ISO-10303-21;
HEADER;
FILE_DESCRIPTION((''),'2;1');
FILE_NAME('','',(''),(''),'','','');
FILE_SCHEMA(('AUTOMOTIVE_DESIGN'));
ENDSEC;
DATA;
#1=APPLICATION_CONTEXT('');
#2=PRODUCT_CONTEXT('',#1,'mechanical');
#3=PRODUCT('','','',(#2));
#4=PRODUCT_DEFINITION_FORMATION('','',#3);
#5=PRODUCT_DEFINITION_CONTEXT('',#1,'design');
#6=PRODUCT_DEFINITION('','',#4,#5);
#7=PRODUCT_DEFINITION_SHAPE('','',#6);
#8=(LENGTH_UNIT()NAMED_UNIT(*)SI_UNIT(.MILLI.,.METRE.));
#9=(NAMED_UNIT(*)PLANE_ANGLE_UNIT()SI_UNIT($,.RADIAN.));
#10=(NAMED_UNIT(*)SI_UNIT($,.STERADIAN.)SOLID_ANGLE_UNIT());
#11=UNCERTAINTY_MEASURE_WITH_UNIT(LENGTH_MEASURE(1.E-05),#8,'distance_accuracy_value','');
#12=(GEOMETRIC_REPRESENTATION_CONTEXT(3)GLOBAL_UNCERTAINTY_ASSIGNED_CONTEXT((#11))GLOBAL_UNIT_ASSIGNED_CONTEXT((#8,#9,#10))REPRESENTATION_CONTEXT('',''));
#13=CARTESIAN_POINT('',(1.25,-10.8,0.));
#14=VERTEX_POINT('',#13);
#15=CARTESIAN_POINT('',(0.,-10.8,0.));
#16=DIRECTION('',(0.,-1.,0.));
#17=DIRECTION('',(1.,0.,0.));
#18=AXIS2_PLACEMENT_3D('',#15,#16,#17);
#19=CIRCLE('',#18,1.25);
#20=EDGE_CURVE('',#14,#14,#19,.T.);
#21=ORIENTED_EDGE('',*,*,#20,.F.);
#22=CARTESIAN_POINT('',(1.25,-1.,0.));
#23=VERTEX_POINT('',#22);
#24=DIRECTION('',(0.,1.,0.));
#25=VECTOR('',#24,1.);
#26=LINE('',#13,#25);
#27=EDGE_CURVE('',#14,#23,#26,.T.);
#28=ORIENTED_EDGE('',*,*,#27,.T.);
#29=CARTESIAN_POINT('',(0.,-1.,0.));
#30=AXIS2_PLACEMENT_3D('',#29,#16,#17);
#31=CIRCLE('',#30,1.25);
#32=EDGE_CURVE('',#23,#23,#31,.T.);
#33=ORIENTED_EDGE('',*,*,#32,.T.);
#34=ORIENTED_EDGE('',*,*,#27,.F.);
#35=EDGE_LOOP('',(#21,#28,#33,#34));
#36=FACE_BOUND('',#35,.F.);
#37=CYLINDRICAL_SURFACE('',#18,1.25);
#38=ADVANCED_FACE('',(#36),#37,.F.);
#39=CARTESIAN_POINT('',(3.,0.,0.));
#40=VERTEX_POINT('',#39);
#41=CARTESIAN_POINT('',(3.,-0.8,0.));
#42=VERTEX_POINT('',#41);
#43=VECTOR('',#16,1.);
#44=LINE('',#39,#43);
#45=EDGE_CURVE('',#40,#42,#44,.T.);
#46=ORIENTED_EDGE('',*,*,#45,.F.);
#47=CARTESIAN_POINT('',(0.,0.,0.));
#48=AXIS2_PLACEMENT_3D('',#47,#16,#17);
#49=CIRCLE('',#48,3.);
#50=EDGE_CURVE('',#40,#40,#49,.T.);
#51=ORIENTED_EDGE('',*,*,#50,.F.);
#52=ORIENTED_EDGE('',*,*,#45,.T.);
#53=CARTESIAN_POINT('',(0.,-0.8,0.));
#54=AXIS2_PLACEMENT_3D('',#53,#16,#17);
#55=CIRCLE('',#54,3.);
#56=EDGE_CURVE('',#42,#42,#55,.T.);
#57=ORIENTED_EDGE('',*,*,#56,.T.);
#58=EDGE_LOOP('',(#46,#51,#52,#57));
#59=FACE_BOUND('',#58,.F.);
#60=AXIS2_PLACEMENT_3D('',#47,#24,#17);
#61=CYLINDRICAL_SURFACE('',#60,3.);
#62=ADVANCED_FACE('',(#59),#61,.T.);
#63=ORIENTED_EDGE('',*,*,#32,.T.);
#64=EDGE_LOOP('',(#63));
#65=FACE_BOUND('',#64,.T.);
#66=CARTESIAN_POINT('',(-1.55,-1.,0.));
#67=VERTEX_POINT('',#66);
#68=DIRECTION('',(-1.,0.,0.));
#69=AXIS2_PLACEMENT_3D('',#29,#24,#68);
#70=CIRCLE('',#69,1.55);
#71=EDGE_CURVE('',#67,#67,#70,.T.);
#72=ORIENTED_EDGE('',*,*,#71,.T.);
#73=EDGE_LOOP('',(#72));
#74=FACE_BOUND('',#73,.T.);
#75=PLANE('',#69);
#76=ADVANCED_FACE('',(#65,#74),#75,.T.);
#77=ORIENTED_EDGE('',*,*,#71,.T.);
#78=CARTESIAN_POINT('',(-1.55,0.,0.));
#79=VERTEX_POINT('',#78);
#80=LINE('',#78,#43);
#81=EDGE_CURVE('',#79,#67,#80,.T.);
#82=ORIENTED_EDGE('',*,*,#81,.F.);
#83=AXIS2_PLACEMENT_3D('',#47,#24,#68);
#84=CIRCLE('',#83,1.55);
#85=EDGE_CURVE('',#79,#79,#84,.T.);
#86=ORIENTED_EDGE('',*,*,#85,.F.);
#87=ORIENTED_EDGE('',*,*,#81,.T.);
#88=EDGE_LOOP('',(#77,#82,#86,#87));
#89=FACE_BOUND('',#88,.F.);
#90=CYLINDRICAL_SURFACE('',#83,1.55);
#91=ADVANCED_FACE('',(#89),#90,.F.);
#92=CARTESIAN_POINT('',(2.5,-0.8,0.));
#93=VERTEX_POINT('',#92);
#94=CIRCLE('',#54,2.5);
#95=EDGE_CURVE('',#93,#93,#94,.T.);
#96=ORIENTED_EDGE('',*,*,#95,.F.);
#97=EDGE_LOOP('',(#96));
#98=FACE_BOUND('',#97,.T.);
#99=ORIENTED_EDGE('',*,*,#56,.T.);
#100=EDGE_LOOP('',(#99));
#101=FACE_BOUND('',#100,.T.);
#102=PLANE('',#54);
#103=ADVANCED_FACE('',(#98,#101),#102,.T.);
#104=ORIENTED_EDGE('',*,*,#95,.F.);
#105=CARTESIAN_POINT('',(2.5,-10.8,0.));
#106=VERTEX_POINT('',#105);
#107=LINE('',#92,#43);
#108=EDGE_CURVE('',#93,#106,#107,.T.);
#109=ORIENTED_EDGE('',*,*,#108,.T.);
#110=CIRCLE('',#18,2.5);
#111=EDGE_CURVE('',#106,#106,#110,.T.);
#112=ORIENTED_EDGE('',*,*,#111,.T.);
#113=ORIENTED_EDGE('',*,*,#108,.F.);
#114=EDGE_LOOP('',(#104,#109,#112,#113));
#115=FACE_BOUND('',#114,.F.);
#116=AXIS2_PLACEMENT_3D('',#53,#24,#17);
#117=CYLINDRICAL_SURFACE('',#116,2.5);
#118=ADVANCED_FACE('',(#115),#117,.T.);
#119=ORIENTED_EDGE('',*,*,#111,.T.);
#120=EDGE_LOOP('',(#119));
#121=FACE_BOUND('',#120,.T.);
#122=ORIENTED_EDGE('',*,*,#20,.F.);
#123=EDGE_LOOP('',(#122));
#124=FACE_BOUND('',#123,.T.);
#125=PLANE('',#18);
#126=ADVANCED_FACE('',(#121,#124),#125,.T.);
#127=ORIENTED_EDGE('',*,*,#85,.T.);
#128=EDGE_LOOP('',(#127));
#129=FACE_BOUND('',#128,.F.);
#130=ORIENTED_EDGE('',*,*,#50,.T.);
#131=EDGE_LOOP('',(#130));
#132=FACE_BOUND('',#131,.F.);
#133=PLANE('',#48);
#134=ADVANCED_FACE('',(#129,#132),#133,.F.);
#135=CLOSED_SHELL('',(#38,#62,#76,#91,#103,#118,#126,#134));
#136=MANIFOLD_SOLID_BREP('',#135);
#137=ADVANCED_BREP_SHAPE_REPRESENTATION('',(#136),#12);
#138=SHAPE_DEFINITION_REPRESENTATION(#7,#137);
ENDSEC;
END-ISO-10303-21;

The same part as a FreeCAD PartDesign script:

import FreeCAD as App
import Part
import Sketcher
Q = App.Units.Quantity

doc = App.newDocument("Part")
body = doc.addObject("PartDesign::Body", "Body")

# Sketch on XZ plane
sketch1 = body.newObject("Sketcher::SketchObject", "Sketch")
sketch1.AttachmentSupport = (doc.getObject("XZ_Plane"), [""])
sketch1.MapMode = "FlatFace"
sketch1.addGeometry(Part.Circle(App.Vector(0, 0, 0), App.Vector(0, 0, 1), 3), False)
sketch1.addConstraint([
    Sketcher.Constraint("Coincident", 0, 3, -1, 1),
    Sketcher.Constraint("Diameter", 0, Q("6 mm")),
])
pad1 = body.newObject("PartDesign::Pad", "Pad")
pad1.Profile = sketch1
pad1.Length = 0.8

# Sketch on XZ plane
sketch2 = body.newObject("Sketcher::SketchObject", "Sketch001")
sketch2.AttachmentSupport = (doc.getObject("XZ_Plane"), [""])
sketch2.MapMode = "FlatFace"
sketch2.AttachmentOffset = App.Placement(App.Vector(0, 0, 0.8), App.Rotation())
sketch2.addGeometry(Part.Circle(App.Vector(0, 0, 0), App.Vector(0, 0, 1), 2.5), False)
sketch2.addConstraint([
    Sketcher.Constraint("Coincident", 0, 3, -1, 1),
    Sketcher.Constraint("Diameter", 0, Q("5 mm")),
])
pad2 = body.newObject("PartDesign::Pad", "Pad001")
pad2.Profile = sketch2
pad2.Length = 10

# Sketch on XZ plane
sketch3 = body.newObject("Sketcher::SketchObject", "Sketch002")
sketch3.AttachmentSupport = (doc.getObject("XZ_Plane"), [""])
sketch3.MapMode = "FlatFace"
sketch3.AttachmentOffset = App.Placement(App.Vector(0, 0, 10.8), App.Rotation())
sketch3.addGeometry(Part.Circle(App.Vector(0, 0, 0), App.Vector(0, 0, 1), 1.2), False)
sketch3.addConstraint([
    Sketcher.Constraint("Coincident", 0, 3, -1, 1),
    Sketcher.Constraint("Diameter", 0, Q("2.5 mm")),
])
pocket1 = body.newObject("PartDesign::Pocket", "Pocket")
pocket1.Profile = sketch3
pocket1.Length = 25

# Sketch on XZ plane
sketch4 = body.newObject("Sketcher::SketchObject", "Sketch003")
sketch4.AttachmentSupport = (doc.getObject("XZ_Plane"), [""])
sketch4.MapMode = "FlatFace"
sketch4.addGeometry(Part.Circle(App.Vector(0, 0, 0), App.Vector(0, 0, 1), 1.6), False)
sketch4.addConstraint([
    Sketcher.Constraint("Coincident", 0, 3, -1, 1),
    Sketcher.Constraint("Diameter", 0, Q("3.1 mm")),
])
pocket2 = body.newObject("PartDesign::Pocket", "Pocket001")
pocket2.Profile = sketch4
pocket2.Length = 1
pocket2.Reversed = True

doc.recompute()
